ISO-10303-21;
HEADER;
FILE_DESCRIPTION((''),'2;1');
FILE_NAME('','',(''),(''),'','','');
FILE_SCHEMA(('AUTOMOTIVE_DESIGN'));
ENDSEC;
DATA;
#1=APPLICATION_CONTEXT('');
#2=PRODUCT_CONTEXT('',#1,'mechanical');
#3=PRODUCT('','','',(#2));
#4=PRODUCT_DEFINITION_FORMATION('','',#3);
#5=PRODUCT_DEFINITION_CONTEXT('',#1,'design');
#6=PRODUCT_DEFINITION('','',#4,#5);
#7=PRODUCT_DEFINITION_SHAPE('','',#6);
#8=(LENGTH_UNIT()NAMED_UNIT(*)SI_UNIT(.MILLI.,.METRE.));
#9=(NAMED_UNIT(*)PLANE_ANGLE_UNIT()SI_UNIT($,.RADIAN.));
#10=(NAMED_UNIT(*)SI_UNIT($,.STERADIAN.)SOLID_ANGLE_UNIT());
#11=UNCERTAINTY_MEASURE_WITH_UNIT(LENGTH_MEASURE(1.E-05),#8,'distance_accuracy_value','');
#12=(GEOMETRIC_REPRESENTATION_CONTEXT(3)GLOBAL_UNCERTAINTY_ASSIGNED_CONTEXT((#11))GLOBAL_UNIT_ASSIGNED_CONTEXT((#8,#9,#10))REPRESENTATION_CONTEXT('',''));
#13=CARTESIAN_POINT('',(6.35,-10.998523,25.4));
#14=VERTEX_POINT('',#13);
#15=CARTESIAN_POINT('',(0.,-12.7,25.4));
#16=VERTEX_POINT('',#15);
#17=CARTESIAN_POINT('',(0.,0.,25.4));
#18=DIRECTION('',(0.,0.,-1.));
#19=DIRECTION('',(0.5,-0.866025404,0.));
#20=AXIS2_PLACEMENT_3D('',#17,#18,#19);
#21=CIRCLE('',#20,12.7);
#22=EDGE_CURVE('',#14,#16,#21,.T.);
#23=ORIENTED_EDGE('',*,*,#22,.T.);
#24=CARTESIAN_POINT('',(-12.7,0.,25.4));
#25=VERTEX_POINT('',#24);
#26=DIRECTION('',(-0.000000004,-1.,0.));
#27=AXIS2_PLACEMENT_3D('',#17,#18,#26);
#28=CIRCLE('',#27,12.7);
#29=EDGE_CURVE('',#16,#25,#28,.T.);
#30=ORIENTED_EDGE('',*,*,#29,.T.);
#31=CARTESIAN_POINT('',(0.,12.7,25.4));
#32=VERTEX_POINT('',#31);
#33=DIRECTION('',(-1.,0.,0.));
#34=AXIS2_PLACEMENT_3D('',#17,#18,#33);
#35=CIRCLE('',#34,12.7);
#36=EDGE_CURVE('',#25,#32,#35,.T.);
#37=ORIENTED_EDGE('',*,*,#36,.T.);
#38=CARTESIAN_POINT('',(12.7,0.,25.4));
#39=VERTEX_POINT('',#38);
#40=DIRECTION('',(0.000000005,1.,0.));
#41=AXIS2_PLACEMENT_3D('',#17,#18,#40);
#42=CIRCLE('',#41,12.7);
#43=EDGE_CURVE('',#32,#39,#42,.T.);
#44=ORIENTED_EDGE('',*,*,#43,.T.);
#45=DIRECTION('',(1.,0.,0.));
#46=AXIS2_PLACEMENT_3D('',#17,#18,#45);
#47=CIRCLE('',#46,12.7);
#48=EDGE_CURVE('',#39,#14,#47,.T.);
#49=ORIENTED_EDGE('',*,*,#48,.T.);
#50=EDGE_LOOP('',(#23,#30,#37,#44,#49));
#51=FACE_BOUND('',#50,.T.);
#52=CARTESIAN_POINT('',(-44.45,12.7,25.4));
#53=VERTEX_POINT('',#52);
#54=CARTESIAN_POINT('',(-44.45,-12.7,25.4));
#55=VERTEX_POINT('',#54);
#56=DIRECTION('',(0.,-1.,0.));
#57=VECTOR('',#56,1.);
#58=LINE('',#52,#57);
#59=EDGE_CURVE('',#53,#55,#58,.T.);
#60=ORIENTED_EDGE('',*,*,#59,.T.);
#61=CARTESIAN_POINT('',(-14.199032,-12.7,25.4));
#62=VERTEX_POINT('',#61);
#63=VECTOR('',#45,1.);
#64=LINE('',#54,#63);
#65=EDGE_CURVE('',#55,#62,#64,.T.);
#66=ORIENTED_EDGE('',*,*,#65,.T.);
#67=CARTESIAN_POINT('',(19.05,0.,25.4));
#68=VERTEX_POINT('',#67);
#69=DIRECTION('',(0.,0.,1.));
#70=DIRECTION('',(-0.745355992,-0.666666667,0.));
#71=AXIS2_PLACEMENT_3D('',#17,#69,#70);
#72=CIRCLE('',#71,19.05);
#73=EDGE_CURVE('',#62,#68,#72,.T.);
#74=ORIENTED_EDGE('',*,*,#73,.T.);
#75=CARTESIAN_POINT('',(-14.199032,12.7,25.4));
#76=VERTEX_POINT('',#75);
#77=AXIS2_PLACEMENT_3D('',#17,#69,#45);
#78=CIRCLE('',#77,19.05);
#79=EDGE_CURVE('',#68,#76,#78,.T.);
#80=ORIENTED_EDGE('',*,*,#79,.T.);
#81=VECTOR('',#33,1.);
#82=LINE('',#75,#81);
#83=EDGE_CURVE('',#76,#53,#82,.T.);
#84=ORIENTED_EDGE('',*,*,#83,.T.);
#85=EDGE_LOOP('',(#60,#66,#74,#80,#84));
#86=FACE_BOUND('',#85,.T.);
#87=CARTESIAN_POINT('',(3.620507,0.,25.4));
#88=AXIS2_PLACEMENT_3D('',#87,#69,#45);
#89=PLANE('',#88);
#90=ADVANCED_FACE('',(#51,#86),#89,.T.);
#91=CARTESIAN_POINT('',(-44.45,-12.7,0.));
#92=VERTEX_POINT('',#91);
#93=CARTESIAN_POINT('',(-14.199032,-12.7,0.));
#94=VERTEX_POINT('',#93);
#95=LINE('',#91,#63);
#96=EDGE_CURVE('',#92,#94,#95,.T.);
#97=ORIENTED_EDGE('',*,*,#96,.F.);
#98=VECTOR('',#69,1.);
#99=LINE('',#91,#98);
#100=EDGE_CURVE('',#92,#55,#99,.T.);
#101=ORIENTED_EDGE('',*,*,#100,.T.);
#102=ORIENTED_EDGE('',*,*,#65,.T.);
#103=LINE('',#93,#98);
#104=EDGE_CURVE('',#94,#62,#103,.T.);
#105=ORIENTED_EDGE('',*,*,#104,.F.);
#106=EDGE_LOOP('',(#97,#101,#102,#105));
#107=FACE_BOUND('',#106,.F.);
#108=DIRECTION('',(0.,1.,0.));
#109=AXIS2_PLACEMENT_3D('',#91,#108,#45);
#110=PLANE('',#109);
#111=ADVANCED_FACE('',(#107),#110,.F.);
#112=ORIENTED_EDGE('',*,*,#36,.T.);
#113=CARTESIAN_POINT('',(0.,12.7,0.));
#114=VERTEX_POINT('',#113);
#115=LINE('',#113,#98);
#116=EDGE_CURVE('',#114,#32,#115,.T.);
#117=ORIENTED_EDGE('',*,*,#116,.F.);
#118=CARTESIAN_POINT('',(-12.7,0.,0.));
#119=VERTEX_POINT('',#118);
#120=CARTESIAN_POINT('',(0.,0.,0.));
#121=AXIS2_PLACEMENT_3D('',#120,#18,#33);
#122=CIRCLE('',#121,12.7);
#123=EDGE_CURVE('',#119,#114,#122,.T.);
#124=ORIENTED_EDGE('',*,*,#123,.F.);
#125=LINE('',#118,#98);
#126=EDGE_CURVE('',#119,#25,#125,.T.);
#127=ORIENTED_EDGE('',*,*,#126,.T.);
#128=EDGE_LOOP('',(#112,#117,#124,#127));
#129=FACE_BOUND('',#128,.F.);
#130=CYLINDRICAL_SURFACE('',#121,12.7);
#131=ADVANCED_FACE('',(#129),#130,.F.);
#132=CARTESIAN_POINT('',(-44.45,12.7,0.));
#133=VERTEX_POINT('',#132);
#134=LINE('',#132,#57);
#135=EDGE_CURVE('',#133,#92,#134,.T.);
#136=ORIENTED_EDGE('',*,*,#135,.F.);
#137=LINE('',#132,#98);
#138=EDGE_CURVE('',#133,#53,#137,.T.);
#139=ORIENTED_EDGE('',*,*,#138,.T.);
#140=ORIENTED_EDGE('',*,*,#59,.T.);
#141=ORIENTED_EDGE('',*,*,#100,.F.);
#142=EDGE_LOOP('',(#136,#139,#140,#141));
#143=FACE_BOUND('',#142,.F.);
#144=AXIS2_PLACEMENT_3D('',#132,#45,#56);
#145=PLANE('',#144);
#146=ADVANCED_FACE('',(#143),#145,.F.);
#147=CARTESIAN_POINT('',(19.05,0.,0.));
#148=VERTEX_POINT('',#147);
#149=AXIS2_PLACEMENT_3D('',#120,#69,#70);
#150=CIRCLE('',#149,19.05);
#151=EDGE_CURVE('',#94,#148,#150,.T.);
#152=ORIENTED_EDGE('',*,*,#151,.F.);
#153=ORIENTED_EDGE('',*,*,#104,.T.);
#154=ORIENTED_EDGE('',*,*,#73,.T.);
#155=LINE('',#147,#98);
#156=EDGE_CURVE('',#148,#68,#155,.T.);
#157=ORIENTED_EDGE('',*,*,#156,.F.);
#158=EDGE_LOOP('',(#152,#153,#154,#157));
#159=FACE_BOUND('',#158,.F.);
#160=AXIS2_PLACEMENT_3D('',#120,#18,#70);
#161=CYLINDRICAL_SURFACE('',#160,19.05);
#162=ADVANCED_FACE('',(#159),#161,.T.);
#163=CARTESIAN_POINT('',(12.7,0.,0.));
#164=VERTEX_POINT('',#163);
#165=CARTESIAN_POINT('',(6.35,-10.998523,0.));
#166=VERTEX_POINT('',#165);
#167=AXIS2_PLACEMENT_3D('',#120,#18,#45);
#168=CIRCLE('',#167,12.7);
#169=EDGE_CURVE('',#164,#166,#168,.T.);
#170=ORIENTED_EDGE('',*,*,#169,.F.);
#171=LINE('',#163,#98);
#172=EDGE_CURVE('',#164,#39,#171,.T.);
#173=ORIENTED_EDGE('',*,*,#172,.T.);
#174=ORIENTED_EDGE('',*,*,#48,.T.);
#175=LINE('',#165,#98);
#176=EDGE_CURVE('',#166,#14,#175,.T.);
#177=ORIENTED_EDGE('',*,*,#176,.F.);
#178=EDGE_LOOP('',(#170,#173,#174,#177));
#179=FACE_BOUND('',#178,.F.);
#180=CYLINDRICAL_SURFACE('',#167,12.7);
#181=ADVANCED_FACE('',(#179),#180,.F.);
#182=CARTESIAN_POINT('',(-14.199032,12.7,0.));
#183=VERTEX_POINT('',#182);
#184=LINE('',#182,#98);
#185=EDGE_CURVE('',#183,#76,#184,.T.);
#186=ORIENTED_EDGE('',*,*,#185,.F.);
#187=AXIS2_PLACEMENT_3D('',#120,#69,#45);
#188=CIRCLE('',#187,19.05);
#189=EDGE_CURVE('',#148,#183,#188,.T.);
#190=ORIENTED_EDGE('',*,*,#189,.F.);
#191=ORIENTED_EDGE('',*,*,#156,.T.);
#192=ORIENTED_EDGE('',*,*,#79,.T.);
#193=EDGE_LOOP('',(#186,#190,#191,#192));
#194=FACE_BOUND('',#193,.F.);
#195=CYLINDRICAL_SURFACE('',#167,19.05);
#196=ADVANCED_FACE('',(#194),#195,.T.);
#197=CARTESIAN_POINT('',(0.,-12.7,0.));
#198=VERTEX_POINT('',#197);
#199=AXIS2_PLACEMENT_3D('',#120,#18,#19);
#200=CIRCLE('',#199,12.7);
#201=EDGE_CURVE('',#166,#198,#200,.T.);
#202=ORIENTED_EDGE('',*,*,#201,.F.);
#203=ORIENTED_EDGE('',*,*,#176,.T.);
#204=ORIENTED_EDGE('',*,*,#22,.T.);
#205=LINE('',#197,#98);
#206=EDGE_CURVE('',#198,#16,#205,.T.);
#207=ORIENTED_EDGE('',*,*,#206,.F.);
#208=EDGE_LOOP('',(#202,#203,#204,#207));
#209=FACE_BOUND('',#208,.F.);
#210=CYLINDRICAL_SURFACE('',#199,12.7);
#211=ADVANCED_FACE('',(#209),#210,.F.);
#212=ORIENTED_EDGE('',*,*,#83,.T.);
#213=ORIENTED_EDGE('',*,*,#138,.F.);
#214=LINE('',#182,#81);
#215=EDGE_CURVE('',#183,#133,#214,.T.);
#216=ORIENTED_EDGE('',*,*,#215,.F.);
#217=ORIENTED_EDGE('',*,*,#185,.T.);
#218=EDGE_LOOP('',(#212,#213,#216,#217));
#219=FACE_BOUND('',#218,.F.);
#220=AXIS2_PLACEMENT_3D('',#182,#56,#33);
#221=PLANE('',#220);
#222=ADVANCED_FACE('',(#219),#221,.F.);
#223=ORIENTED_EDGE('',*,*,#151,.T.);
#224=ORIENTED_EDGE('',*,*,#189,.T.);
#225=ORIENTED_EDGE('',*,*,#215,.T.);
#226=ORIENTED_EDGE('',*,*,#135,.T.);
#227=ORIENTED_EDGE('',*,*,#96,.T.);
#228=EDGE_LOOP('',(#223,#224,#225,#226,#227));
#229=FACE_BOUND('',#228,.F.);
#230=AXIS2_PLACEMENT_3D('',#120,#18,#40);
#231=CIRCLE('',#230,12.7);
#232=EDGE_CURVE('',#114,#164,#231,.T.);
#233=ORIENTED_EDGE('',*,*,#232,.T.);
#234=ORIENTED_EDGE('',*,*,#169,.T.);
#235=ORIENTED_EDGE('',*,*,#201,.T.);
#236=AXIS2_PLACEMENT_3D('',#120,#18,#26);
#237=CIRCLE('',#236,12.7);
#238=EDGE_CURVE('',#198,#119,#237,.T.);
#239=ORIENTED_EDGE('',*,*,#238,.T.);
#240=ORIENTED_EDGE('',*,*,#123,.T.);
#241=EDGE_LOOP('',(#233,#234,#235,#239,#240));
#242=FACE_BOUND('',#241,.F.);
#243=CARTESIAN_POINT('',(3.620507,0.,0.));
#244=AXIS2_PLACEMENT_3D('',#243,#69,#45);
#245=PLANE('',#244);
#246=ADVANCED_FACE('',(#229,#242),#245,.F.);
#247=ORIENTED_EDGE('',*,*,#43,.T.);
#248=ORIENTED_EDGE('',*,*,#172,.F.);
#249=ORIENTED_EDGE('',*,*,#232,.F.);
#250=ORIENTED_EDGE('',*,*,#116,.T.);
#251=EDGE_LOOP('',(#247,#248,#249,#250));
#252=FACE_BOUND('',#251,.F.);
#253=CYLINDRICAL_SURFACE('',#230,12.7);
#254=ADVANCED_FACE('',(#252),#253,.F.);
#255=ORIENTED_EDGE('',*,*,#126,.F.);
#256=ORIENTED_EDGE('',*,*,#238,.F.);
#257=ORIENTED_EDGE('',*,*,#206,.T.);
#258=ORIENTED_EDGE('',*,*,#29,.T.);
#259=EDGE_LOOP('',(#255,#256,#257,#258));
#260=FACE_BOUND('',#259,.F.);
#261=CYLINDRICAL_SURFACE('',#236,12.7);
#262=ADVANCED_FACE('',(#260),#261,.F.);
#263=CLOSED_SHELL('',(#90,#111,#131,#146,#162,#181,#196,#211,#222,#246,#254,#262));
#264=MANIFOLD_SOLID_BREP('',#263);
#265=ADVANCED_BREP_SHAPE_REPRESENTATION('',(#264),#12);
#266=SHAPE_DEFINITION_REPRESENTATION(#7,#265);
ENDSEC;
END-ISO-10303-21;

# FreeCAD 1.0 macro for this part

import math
import FreeCAD as App
import Part
import Sketcher

V = App.Vector
Q = App.Units.Quantity

doc = App.newDocument("Part")
params = doc.addObject("Spreadsheet::Sheet", "Params")
for row, (alias, value) in enumerate([
    ("sketch1_radius", "0.5 in"),
    ("sketch1_radius2", "0.75 in"),
    ("pad1_length", "1 in"),
], start=1):
    params.set(f"A{row}", alias)
    params.set(f"B{row}", "=" + value)
    params.setAlias(f"B{row}", alias)

body = doc.addObject("PartDesign::Body", "Body")

sketch1 = body.newObject("Sketcher::SketchObject", "Sketch")
sketch1.AttachmentSupport = (doc.getObject("XY_Plane"), [""])
sketch1.MapMode = "FlatFace"
sketch1.addGeometry(Part.LineSegment(V(-44, -13, 0), V(-14, -13, 0)), False)
sketch1.addGeometry(Part.ArcOfCircle(Part.Circle(V(0, 0, 0), V(0, 0, 1), 19), math.radians(-138), math.radians(0)), False)
sketch1.addGeometry(Part.ArcOfCircle(Part.Circle(V(0, 0, 0), V(0, 0, 1), 19), math.radians(0), math.radians(138)), False)
sketch1.addGeometry(Part.LineSegment(V(-14, 13, 0), V(-44, 13, 0)), False)
sketch1.addGeometry(Part.LineSegment(V(-44, 13, 0), V(-44, -13, 0)), False)
sketch1.addGeometry(Part.ArcOfCircle(Part.Circle(V(0, 0, 0), V(0, 0, 1), 13), math.radians(-90), math.radians(-60)), False)
sketch1.addGeometry(Part.ArcOfCircle(Part.Circle(V(0, 0, 0), V(0, 0, 1), 13), math.radians(180), math.radians(270)), False)
sketch1.addGeometry(Part.ArcOfCircle(Part.Circle(V(0, 0, 0), V(0, 0, 1), 13), math.radians(90), math.radians(180)), False)
sketch1.addGeometry(Part.ArcOfCircle(Part.Circle(V(0, 0, 0), V(0, 0, 1), 13), math.radians(0), math.radians(90)), False)
sketch1.addGeometry(Part.ArcOfCircle(Part.Circle(V(0, 0, 0), V(0, 0, 1), 13), math.radians(-60), math.radians(0)), False)
sketch1.addConstraint(Sketcher.Constraint("Coincident", 0, 2, 1, 1))
sketch1.addConstraint(Sketcher.Constraint("Tangent", 1, 2, 2, 1))
sketch1.addConstraint(Sketcher.Constraint("Coincident", 2, 2, 3, 1))
sketch1.addConstraint(Sketcher.Constraint("Coincident", 3, 2, 4, 1))
sketch1.addConstraint(Sketcher.Constraint("Coincident", 4, 2, 0, 1))
sketch1.addConstraint(Sketcher.Constraint("Tangent", 5, 1, 6, 2))
sketch1.addConstraint(Sketcher.Constraint("Tangent", 6, 1, 7, 2))
sketch1.addConstraint(Sketcher.Constraint("Tangent", 7, 1, 8, 2))
sketch1.addConstraint(Sketcher.Constraint("Tangent", 8, 1, 9, 2))
sketch1.addConstraint(Sketcher.Constraint("Tangent", 9, 1, 5, 2))
sketch1.addConstraint(Sketcher.Constraint("Horizontal", 0))
sketch1.addConstraint(Sketcher.Constraint("Horizontal", 3))
sketch1.addConstraint(Sketcher.Constraint("Vertical", 4))
sketch1.addConstraint(Sketcher.Constraint("Coincident", 1, 3, -1, 1))
sketch1.addConstraint(Sketcher.Constraint("Coincident", 5, 3, -1, 1))
sketch1.addConstraint(Sketcher.Constraint("Coincident", 7, 3, -1, 1))
sketch1.addConstraint(Sketcher.Constraint("Equal", 1, 2))
sketch1.addConstraint(Sketcher.Constraint("PointOnObject", 1, 2, -1))
sketch1.addConstraint(Sketcher.Constraint("PointOnObject", 5, 1, -2))
sketch1.addConstraint(Sketcher.Constraint("PointOnObject", 6, 1, -1))
sketch1.addConstraint(Sketcher.Constraint("PointOnObject", 7, 1, -2))
sketch1.addConstraint(Sketcher.Constraint("PointOnObject", 8, 1, -1))
sketch1.addConstraint(Sketcher.Constraint("Horizontal", 4, 2, 5, 1))
sketch1.addConstraint(Sketcher.Constraint("Horizontal", 3, 2, 7, 1))
sketch1.addConstraint(Sketcher.Constraint("Radius", 5, Q("0.5 in")))
sketch1.addConstraint(Sketcher.Constraint("Radius", 1, Q("0.75 in")))
sketch1.addConstraint(Sketcher.Constraint("DistanceX", 3, 2, -1, 1, Q("1.75 in")))
sketch1.addConstraint(Sketcher.Constraint("DistanceX", -1, 1, 9, 1, Q("0.25 in")))
sketch1.setExpression("Constraints[24]", "Params.sketch1_radius")
sketch1.setExpression("Constraints[25]", "Params.sketch1_radius2")
pad1 = body.newObject("PartDesign::Pad", "Pad")
pad1.Profile = sketch1
pad1.setExpression("Length", "Params.pad1_length")

doc.recompute()
